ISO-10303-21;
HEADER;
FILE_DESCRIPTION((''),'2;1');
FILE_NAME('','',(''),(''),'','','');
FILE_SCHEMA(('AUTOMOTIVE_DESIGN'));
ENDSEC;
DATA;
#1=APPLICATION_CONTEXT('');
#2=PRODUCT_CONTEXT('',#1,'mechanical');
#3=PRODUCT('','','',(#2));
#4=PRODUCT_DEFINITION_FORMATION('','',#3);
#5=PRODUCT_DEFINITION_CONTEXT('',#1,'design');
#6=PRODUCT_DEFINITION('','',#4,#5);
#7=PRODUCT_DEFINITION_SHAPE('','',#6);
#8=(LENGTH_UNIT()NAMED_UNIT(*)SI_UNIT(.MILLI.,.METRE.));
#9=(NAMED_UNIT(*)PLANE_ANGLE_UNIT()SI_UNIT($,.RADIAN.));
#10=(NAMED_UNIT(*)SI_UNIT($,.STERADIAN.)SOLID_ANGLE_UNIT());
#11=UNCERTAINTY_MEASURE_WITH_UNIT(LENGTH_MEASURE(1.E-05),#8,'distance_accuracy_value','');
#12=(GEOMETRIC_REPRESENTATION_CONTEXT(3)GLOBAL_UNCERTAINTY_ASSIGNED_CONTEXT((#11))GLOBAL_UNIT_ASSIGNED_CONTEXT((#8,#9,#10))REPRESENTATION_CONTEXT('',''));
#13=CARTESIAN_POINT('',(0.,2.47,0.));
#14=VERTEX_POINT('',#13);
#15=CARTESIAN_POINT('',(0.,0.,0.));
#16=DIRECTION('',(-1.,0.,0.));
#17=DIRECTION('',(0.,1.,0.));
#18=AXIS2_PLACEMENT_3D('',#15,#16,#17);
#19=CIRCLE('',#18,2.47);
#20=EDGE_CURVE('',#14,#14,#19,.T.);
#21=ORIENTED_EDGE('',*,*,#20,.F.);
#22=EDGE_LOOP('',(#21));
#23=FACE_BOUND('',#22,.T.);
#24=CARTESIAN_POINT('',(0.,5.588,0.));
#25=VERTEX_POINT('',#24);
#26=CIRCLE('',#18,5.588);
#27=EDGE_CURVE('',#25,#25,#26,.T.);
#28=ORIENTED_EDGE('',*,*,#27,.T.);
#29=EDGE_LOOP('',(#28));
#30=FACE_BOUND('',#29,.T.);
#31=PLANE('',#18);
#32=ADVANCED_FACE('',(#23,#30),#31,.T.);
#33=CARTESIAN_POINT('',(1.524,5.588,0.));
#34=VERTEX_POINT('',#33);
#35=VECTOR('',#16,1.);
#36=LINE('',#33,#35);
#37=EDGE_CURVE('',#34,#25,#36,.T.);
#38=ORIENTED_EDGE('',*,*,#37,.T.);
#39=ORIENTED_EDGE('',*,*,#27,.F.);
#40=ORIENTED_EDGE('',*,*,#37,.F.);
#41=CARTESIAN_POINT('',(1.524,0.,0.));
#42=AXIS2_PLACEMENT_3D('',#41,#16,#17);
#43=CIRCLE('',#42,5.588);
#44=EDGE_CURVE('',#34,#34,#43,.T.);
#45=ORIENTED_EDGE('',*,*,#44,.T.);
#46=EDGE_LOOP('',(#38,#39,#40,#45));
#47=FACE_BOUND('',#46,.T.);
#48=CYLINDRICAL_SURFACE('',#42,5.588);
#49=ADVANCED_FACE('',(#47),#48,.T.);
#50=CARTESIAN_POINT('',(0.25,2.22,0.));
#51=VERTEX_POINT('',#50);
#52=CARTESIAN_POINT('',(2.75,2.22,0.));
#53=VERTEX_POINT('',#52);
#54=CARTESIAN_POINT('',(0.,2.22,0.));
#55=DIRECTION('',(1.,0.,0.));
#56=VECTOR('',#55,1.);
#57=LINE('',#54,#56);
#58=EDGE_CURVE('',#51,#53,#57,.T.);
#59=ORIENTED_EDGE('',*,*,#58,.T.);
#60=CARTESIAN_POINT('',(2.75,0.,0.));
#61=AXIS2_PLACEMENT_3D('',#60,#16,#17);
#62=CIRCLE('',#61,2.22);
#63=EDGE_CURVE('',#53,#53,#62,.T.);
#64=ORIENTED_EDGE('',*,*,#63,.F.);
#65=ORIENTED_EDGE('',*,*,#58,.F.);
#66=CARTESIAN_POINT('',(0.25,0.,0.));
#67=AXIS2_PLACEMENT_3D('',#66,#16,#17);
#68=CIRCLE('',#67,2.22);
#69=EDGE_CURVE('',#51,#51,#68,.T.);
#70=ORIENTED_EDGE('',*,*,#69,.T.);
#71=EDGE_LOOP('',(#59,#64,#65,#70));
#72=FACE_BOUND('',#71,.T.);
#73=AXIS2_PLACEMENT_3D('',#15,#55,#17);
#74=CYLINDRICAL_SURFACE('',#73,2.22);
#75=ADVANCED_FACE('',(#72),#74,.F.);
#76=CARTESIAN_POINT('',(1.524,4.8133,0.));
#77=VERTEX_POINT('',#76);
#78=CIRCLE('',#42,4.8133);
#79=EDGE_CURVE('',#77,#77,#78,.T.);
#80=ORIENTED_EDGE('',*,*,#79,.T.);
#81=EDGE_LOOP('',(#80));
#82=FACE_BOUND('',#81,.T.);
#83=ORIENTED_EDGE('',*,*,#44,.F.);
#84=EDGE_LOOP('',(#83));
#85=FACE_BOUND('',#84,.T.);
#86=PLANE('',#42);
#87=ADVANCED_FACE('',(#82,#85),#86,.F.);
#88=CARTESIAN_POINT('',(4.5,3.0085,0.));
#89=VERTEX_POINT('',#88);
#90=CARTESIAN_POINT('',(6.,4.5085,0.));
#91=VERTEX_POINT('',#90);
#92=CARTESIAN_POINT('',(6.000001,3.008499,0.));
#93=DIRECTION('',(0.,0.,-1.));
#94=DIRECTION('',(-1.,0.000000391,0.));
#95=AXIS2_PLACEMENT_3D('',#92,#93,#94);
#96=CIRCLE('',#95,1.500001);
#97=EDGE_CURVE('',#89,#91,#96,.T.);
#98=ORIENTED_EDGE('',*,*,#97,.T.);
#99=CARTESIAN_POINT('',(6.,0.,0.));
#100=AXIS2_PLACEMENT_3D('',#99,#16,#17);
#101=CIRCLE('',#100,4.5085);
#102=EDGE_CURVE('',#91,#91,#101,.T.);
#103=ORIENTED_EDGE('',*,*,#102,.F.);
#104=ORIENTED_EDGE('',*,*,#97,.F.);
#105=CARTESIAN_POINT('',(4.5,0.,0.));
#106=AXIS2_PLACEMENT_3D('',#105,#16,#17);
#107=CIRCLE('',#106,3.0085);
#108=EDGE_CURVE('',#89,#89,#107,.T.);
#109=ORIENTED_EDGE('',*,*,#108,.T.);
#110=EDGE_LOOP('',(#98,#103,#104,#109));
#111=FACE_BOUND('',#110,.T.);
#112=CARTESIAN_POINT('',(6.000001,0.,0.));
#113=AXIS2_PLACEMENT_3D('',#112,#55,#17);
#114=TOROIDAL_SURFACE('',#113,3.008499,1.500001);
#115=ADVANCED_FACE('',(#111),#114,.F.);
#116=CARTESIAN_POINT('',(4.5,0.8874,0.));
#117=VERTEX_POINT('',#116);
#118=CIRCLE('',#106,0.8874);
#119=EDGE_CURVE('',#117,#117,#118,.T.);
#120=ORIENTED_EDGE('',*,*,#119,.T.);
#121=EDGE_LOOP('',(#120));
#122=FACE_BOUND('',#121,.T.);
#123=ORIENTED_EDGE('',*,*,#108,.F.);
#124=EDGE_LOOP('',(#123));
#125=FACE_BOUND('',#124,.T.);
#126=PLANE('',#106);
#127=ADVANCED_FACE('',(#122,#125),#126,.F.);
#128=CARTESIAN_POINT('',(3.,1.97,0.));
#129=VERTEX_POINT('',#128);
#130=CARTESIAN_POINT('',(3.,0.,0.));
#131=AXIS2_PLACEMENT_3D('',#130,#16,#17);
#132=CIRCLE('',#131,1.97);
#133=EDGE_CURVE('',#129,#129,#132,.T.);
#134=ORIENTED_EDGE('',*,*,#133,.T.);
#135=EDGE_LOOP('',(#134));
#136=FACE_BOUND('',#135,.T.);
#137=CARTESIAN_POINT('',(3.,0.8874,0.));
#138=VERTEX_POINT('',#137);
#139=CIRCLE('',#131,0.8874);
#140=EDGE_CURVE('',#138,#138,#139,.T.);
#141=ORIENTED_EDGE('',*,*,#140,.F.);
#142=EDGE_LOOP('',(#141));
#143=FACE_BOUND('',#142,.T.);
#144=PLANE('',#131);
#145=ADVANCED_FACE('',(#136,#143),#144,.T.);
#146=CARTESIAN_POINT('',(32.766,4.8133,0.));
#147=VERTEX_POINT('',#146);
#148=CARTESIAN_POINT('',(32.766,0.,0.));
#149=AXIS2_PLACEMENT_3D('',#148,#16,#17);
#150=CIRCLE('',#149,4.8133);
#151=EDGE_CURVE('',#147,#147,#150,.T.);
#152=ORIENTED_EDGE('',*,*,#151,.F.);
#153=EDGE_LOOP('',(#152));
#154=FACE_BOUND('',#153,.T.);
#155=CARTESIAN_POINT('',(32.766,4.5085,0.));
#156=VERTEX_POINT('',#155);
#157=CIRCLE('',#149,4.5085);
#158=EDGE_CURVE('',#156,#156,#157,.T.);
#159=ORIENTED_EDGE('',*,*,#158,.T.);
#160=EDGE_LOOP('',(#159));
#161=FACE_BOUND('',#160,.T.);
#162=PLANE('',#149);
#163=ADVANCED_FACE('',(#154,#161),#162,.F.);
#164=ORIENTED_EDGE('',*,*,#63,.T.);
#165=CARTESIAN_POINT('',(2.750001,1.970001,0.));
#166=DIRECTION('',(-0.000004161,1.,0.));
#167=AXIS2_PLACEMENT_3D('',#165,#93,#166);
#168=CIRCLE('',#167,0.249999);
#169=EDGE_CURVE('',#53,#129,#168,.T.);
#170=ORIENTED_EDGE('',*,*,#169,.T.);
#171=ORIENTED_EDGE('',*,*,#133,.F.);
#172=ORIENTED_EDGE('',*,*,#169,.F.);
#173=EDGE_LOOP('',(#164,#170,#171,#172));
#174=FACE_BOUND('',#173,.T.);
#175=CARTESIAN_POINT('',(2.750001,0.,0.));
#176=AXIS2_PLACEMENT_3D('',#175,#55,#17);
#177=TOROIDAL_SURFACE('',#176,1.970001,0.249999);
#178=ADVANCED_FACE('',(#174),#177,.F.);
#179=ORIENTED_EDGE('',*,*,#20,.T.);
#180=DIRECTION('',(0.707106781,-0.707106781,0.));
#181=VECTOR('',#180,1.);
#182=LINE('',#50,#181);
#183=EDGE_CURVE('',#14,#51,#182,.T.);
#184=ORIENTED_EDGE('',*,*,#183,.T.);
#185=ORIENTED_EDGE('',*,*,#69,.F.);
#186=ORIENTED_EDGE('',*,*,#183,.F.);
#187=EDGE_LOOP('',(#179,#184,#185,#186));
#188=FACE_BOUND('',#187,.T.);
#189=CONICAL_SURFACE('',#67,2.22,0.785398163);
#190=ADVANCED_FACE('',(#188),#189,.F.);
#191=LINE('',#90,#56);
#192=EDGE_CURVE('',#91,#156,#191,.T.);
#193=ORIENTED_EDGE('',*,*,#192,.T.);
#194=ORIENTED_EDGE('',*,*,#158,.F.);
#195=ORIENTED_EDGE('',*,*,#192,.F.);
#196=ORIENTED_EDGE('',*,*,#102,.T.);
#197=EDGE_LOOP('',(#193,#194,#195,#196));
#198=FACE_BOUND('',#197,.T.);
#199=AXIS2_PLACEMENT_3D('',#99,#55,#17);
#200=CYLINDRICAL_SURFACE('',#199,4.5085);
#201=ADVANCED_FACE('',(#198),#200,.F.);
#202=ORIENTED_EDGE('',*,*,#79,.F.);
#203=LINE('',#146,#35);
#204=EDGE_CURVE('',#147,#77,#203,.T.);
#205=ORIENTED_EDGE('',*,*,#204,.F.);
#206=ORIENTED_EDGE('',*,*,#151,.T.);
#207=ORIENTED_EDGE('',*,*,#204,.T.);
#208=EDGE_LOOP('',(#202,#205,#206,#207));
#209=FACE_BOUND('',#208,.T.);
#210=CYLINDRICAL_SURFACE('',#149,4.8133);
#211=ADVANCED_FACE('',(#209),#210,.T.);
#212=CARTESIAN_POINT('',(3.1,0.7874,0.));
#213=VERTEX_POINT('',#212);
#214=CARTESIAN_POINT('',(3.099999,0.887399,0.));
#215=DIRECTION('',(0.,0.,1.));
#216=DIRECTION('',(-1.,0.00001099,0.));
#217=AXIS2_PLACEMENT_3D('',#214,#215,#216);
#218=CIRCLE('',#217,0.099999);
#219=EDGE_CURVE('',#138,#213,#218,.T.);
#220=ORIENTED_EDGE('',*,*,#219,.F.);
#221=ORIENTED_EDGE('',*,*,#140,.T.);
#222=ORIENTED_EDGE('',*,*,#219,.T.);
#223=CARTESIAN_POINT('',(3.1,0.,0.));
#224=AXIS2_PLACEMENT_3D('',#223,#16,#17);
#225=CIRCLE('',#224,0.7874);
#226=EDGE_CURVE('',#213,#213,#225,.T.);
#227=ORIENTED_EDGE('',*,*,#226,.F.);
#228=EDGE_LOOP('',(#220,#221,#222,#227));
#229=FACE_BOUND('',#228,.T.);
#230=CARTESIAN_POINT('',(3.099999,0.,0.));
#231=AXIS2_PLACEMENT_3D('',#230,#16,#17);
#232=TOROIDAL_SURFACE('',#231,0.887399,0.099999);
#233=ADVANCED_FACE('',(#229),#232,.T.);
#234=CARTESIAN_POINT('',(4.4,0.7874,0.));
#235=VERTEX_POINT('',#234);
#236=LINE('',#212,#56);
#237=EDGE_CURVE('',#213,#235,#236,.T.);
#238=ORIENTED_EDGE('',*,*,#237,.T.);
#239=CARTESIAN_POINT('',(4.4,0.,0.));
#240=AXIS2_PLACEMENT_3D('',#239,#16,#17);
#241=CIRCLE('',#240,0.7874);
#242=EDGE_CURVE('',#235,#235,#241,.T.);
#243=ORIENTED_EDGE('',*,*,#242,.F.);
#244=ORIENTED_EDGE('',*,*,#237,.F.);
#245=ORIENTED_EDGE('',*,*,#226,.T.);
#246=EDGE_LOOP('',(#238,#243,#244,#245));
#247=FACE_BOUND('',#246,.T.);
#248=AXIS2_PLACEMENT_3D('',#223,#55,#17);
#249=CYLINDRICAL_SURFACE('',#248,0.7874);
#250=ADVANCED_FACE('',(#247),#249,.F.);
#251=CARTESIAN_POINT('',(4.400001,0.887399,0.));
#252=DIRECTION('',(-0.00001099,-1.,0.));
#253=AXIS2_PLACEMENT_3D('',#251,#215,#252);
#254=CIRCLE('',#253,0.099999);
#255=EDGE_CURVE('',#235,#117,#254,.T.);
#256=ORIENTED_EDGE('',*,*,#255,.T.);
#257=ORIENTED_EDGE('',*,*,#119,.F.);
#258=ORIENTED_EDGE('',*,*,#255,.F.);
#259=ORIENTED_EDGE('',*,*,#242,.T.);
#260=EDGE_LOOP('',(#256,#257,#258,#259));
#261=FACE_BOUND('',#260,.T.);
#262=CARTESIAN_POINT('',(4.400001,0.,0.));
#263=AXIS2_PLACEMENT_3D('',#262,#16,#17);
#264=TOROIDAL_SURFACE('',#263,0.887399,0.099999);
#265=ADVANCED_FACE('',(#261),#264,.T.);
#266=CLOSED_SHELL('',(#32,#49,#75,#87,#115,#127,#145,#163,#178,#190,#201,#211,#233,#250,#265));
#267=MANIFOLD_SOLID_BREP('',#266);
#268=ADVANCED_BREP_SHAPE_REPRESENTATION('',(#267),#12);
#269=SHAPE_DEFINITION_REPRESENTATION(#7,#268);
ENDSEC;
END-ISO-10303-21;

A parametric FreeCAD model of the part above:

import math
import FreeCAD as App
import Part
import Sketcher
Q = App.Units.Quantity


def edges_at(feature, points):
    """Names of the edges that pass closest to the given points."""
    edges = feature.Shape.Edges
    near = lambda p: min(range(len(edges)), key=lambda i: edges[i].distToShape(Part.Vertex(*p))[0])
    return sorted({f"Edge{near(p) + 1}" for p in points})

doc = App.newDocument("Part")
body = doc.addObject("PartDesign::Body", "Body")

# Sketch on XY plane
sketch1 = doc.addObject("Sketcher::SketchObject", "Sketch")
body.addObject(sketch1)
sketch1.AttachmentSupport = (doc.XY_Plane, [""])
sketch1.MapMode = "FlatFace"
sketch1.addGeometry([
    Part.LineSegment(App.Vector(0, 5.588, 0), App.Vector(0, 2.22, 0)),  # 0
    Part.LineSegment(App.Vector(0, 2.22, 0), App.Vector(2.75, 2.22, 0)),  # 1
    Part.ArcOfCircle(Part.Circle(App.Vector(2.750001, 1.970001, 0), App.Vector(0, 0, 1), 0.249999), math.radians(-0.000238), math.radians(90.000238)),  # 2
    Part.LineSegment(App.Vector(3, 1.97, 0), App.Vector(3, 0.8874, 0)),  # 3
    Part.ArcOfCircle(Part.Circle(App.Vector(3.099999, 0.887399, 0), App.Vector(0, 0, 1), 0.099999), math.radians(179.99937), math.radians(270.00063)),  # 4
    Part.LineSegment(App.Vector(3.1, 0.7874, 0), App.Vector(4.4, 0.7874, 0)),  # 5
    Part.ArcOfCircle(Part.Circle(App.Vector(4.400001, 0.887399, 0), App.Vector(0, 0, 1), 0.099999), math.radians(-90.00063), math.radians(0.00063)),  # 6
    Part.LineSegment(App.Vector(4.5, 0.8874, 0), App.Vector(4.5, 3.0085, 0)),  # 7
    Part.ArcOfCircle(Part.Circle(App.Vector(6.000001, 3.008499, 0), App.Vector(0, 0, 1), 1.500001), math.radians(90.000022), math.radians(179.999978)),  # 8
    Part.LineSegment(App.Vector(6, 4.5085, 0), App.Vector(32.766, 4.5085, 0)),  # 9
    Part.LineSegment(App.Vector(32.766, 4.5085, 0), App.Vector(32.766, 4.8133, 0)),  # 10
    Part.LineSegment(App.Vector(32.766, 4.8133, 0), App.Vector(1.524, 4.8133, 0)),  # 11
    Part.LineSegment(App.Vector(1.524, 4.8133, 0), App.Vector(1.524, 5.588, 0)),  # 12
    Part.LineSegment(App.Vector(1.524, 5.588, 0), App.Vector(0, 5.588, 0)),  # 13
], False)
sketch1.addConstraint([
    Sketcher.Constraint("Coincident", 0, 2, 1, 1),
    Sketcher.Constraint("Coincident", 1, 2, 2, 2),
    Sketcher.Constraint("Coincident", 2, 1, 3, 1),
    Sketcher.Constraint("Coincident", 3, 2, 4, 1),
    Sketcher.Constraint("Coincident", 4, 2, 5, 1),
    Sketcher.Constraint("Coincident", 5, 2, 6, 1),
    Sketcher.Constraint("Coincident", 6, 2, 7, 1),
    Sketcher.Constraint("Tangent", 7, 2, 8, 2),
    Sketcher.Constraint("Tangent", 8, 1, 9, 1),
    Sketcher.Constraint("Coincident", 9, 2, 10, 1),
    Sketcher.Constraint("Coincident", 10, 2, 11, 1),
    Sketcher.Constraint("Coincident", 11, 2, 12, 1),
    Sketcher.Constraint("Coincident", 12, 2, 13, 1),
    Sketcher.Constraint("Coincident", 13, 2, 0, 1),
    Sketcher.Constraint("Vertical", 0),
    Sketcher.Constraint("Horizontal", 1),
    Sketcher.Constraint("Vertical", 3),
    Sketcher.Constraint("Horizontal", 5),
    Sketcher.Constraint("Vertical", 7),
    Sketcher.Constraint("Horizontal", 9),
    Sketcher.Constraint("Vertical", 10),
    Sketcher.Constraint("Horizontal", 11),
    Sketcher.Constraint("Vertical", 12),
    Sketcher.Constraint("Horizontal", 13),
    Sketcher.Constraint("Equal", 4, 6),
    Sketcher.Constraint("PointOnObject", 0, 2, -2),
    Sketcher.Constraint("Horizontal", 6, 3, 3, 2),
    Sketcher.Constraint("Horizontal", 3, 2, 6, 2),
    Sketcher.Constraint("Vertical", 2, 3, 1, 2),
    Sketcher.Constraint("Vertical", 6, 3, 5, 2),
    Sketcher.Constraint("DistanceX", 11, 2, 11, 1, Q("1.23 in")),
    Sketcher.Constraint("DistanceX", 13, 2, 13, 1, Q("0.06 in")),
    Sketcher.Constraint("DistanceY", 10, 1, 10, 2, Q("0.012 in")),
    Sketcher.Constraint("DistanceY", -1, 1, 12, 2, Q("0.22 in")),
    Sketcher.Constraint("Radius", 2, 0.249999),
    Sketcher.Constraint("Radius", 4, 0.099999),
    Sketcher.Constraint("Radius", 8, 1.500001),
    Sketcher.Constraint("DistanceY", 12, 1, 12, 2, Q("0.0305 in")),
    Sketcher.Constraint("DistanceY", -1, 1, 4, 2, Q("0.031 in")),
    Sketcher.Constraint("DistanceX", 1, 1, 1, 2, 2.75),
    Sketcher.Constraint("DistanceX", 5, 1, 5, 2, 1.3),
    Sketcher.Constraint("DistanceX", 9, 1, 9, 2, 26.766),
    Sketcher.Constraint("DistanceY", 0, 2, 0, 1, 3.368),
    Sketcher.Constraint("DistanceY", 3, 2, 3, 1, 1.0826),
])
revolution = doc.addObject("PartDesign::Revolution", "Revolution")
body.addObject(revolution)
revolution.Profile = sketch1
revolution.ReferenceAxis = (sketch1, ["H_Axis"])
revolution.Angle = 360
doc.recompute()

chamfer = doc.addObject("PartDesign::Chamfer", "Chamfer")
body.addObject(chamfer)
chamfer.Base = (revolution, edges_at(revolution, [(0, -2.22, 0)]))
chamfer.Size = 0.25

doc.recompute()
